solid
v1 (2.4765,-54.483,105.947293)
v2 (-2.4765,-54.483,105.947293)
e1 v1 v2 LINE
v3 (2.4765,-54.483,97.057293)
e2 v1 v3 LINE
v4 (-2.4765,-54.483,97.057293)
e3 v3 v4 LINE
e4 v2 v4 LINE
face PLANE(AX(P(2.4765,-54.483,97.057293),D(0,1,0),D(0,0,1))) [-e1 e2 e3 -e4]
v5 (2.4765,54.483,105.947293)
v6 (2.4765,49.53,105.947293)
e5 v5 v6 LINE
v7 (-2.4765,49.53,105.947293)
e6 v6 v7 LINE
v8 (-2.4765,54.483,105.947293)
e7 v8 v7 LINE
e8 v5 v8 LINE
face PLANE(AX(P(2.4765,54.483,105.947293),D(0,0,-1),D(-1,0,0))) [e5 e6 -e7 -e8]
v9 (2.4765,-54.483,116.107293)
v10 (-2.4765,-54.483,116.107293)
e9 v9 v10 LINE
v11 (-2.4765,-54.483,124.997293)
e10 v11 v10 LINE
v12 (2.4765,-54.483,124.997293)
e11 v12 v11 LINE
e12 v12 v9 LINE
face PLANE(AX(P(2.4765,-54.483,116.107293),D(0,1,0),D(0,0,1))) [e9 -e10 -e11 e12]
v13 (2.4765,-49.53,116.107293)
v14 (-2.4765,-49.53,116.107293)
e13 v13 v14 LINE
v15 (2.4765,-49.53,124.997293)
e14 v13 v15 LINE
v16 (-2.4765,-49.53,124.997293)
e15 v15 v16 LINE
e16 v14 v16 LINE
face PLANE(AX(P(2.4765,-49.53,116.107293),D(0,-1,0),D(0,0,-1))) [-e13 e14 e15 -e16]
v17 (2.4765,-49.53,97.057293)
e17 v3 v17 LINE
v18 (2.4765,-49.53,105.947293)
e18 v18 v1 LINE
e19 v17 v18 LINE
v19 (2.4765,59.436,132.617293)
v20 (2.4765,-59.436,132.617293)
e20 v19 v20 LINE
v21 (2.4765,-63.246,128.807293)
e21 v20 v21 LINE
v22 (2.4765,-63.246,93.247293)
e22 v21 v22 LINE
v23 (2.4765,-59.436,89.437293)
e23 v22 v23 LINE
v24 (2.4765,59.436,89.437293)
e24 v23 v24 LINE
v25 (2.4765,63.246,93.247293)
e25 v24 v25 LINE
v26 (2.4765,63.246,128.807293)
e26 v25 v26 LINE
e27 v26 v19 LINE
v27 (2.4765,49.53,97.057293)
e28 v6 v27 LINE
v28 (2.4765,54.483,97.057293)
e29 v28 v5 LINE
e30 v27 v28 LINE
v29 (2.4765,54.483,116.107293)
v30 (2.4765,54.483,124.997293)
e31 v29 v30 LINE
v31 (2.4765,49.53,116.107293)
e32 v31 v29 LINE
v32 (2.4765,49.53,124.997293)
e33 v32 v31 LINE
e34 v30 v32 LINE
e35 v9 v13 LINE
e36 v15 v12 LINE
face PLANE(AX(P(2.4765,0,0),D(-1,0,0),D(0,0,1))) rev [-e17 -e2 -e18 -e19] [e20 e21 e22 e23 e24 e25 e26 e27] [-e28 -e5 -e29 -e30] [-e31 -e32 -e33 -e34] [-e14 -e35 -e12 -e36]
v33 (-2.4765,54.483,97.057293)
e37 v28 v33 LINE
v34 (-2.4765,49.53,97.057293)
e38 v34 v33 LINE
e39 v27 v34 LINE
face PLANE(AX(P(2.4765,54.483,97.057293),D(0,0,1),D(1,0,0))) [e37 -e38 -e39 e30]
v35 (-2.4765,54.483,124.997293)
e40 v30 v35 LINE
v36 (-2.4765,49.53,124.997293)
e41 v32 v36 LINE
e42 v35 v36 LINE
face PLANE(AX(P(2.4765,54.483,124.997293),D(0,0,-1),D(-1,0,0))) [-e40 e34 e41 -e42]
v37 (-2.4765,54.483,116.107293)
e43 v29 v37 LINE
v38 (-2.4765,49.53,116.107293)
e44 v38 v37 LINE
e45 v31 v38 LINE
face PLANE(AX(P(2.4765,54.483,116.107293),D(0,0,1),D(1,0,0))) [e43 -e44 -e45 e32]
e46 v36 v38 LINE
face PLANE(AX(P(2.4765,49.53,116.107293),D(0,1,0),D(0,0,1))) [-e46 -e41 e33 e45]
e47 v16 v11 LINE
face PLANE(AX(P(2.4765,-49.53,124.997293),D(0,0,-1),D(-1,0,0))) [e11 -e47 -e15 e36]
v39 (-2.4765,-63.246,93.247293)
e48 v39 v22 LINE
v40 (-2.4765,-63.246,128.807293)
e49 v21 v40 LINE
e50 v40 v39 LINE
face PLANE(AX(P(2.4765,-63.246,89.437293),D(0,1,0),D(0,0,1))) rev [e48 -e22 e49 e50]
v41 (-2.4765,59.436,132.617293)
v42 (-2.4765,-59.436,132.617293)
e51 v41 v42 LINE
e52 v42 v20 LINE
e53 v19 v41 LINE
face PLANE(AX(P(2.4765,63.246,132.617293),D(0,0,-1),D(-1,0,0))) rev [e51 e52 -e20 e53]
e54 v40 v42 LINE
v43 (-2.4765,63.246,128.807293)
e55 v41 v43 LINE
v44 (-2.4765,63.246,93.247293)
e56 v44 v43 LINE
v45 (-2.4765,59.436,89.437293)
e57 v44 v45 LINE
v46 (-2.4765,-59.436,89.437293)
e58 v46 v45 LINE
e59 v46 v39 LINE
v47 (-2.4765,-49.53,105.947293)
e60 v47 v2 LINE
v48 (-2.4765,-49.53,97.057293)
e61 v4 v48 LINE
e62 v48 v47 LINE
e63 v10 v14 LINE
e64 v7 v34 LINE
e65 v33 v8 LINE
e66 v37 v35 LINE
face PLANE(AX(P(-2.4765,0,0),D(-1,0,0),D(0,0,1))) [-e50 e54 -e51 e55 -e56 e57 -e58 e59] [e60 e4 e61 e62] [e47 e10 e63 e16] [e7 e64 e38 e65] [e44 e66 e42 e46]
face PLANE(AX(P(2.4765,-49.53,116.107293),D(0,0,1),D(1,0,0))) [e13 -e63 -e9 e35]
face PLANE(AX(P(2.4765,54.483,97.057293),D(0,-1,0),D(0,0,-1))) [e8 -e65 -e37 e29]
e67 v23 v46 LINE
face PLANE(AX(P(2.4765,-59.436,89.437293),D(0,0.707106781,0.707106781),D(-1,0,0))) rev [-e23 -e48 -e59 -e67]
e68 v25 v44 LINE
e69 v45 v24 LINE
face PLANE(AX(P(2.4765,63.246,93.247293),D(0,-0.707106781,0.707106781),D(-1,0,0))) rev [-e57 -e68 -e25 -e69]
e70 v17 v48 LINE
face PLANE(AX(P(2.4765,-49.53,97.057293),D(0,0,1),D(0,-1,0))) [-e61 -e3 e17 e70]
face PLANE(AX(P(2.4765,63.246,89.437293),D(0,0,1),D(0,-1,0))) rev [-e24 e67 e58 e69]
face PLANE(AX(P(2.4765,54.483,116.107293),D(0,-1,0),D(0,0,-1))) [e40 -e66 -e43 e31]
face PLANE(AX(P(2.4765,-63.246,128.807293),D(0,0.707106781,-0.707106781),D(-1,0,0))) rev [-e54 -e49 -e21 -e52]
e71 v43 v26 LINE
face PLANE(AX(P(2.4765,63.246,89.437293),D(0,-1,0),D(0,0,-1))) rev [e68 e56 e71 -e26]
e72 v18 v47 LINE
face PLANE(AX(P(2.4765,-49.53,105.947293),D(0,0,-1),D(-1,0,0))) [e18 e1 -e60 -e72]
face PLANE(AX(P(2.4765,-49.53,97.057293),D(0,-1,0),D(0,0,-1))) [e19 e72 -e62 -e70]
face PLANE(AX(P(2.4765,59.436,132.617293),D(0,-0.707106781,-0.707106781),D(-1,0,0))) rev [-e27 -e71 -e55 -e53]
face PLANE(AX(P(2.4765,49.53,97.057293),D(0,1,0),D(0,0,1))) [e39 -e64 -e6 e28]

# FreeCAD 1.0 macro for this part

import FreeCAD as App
import Part
import Sketcher

V = App.Vector
Q = App.Units.Quantity


def edges_at(feature, points):
    """Names of the edges that pass closest to the given points."""
    edges = feature.Shape.Edges
    near = lambda p: min(range(len(edges)), key=lambda i: edges[i].distToShape(Part.Vertex(*p))[0])
    return sorted({f"Edge{near(p) + 1}" for p in points})


def add_polygon(sketch, points):
    """Adds a closed chain of lines whose ends are joined by coincident constraints."""
    first, n = sketch.GeometryCount, len(points)
    for a, b in zip(points, points[1:] + points[:1]):
        sketch.addGeometry(Part.LineSegment(App.Vector(*a, 0), App.Vector(*b, 0)), False)
    for i in range(n):
        sketch.addConstraint(Sketcher.Constraint("Coincident", first + i, 2, first + (i + 1) % n, 1))

doc = App.newDocument("Part")
body = doc.addObject("PartDesign::Body", "Body")

sketch1 = body.newObject("Sketcher::SketchObject", "Sketch")
sketch1.AttachmentSupport = (doc.getObject("YZ_Plane"), [""])
sketch1.MapMode = "FlatFace"
add_polygon(sketch1, [(63.246, 132.617293), (-63.246, 132.617293), (-63.246, 89.437293), (63.246, 89.437293)])
add_polygon(sketch1, [(-54.483, 116.107293), (-54.483, 124.997293), (-49.53, 124.997293), (-49.53, 116.107293)])
add_polygon(sketch1, [(-54.483, 97.057293), (-54.483, 105.947293), (-49.53, 105.947293), (-49.53, 97.057293)])
add_polygon(sketch1, [(49.53, 116.107293), (49.53, 124.997293), (54.483, 124.997293), (54.483, 116.107293)])
add_polygon(sketch1, [(49.53, 97.057293), (49.53, 105.947293), (54.483, 105.947293), (54.483, 97.057293)])
sketch1.addConstraint([
    Sketcher.Constraint("Horizontal", 0),
    Sketcher.Constraint("Vertical", 1),
    Sketcher.Constraint("Horizontal", 2),
    Sketcher.Constraint("Vertical", 3),
    Sketcher.Constraint("Vertical", 4),
    Sketcher.Constraint("Horizontal", 5),
    Sketcher.Constraint("Vertical", 6),
    Sketcher.Constraint("Horizontal", 7),
    Sketcher.Constraint("Vertical", 8),
    Sketcher.Constraint("Horizontal", 9),
    Sketcher.Constraint("Vertical", 10),
    Sketcher.Constraint("Horizontal", 11),
    Sketcher.Constraint("Vertical", 12),
    Sketcher.Constraint("Horizontal", 13),
    Sketcher.Constraint("Vertical", 14),
    Sketcher.Constraint("Horizontal", 15),
    Sketcher.Constraint("Vertical", 16),
    Sketcher.Constraint("Horizontal", 17),
    Sketcher.Constraint("Vertical", 18),
    Sketcher.Constraint("Horizontal", 19),
    Sketcher.Constraint("Symmetric", 5, 2, 12, 2, -2),
    Sketcher.Constraint("Symmetric", 7, 2, 14, 2, -2),
    Sketcher.Constraint("Symmetric", 9, 2, 16, 2, -2),
    Sketcher.Constraint("Symmetric", 11, 2, 18, 2, -2),
    Sketcher.Constraint("Vertical", 7, 2, 8, 2),
    Sketcher.Constraint("Vertical", 6, 2, 9, 2),
    Sketcher.Constraint("Equal", 6, 8),
    Sketcher.Constraint("DistanceY", 1, 2, 1, 1, Q("1.7 in")),
    Sketcher.Constraint("DistanceX", 0, 2, 0, 1, Q("4.98 in")),
    Sketcher.Constraint("DistanceY", 4, 1, 4, 2, Q("0.35 in")),
    Sketcher.Constraint("DistanceY", 4, 2, 0, 2, Q("0.3 in")),
    Sketcher.Constraint("DistanceY", 8, 2, 7, 2, Q("0.4 in")),
    Sketcher.Constraint("DistanceX", 5, 2, 12, 2, Q("3.9 in")),
    Sketcher.Constraint("DistanceX", 5, 1, 5, 2, Q("0.195 in")),
    Sketcher.Constraint("DistanceX", 0, 2, -1, 1, Q("2.49 in")),
    Sketcher.Constraint("DistanceY", -1, 1, 0, 2, 132.617293),
])
pad1 = body.newObject("PartDesign::Pad", "Pad")
pad1.Profile = sketch1
pad1.Length = Q("0.195 in")
pad1.Midplane = True
doc.recompute()

chamfer = body.newObject("PartDesign::Chamfer", "Chamfer")
chamfer.Base = (pad1, edges_at(pad1, [
    (0, -63.246, 89.437),
    (0, -63.246, 132.617),
    (0, 63.246, 132.617),
    (0, 63.246, 89.437),
]))
chamfer.Size = Q("0.15 in")

doc.recompute()
